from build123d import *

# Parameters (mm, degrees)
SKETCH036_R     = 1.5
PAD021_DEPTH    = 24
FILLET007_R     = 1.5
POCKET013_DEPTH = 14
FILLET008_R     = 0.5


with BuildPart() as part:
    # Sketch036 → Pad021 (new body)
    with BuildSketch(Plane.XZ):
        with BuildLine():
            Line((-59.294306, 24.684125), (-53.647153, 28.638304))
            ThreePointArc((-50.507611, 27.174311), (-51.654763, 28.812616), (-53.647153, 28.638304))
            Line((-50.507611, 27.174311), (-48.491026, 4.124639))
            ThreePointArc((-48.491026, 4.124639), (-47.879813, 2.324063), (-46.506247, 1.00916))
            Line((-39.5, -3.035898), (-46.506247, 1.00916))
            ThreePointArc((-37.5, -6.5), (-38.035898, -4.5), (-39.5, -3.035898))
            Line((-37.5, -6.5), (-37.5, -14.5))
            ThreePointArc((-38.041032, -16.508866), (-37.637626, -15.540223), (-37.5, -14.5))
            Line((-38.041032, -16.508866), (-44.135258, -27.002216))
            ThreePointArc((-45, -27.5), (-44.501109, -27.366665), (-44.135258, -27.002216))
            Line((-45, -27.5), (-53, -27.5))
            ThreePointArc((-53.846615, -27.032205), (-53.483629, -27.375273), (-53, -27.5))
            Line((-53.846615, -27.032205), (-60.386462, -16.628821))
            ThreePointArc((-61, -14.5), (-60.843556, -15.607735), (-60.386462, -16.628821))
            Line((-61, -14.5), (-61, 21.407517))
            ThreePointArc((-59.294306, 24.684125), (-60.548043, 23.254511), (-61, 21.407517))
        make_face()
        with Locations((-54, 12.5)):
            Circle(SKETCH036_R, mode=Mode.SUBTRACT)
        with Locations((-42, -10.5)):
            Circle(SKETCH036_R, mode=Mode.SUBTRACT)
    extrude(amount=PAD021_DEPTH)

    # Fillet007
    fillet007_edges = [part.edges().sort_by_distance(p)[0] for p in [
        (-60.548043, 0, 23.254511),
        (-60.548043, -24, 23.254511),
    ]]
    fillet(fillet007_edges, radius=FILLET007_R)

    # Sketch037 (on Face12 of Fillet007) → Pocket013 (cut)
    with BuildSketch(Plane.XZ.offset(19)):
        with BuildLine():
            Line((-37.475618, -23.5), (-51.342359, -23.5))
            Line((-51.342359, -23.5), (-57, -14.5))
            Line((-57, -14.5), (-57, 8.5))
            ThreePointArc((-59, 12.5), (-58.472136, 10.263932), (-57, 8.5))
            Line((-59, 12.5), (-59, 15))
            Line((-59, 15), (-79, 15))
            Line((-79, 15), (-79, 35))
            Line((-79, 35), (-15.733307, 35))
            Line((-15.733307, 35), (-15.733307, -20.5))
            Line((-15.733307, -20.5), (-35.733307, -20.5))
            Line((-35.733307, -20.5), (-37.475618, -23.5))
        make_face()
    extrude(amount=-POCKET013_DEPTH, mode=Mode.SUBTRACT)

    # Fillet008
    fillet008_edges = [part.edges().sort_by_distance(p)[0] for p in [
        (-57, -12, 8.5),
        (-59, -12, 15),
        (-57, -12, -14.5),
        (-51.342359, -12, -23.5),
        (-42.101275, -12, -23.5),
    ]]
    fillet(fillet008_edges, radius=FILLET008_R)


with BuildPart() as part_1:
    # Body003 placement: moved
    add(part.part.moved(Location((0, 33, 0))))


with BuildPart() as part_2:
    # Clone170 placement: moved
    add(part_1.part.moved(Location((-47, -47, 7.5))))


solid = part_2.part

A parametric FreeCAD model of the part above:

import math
import FreeCAD as App
import Part
import Sketcher

V = App.Vector
Q = App.Units.Quantity


def edges_at(feature, points):
    """Names of the edges that pass closest to the given points."""
    edges = feature.Shape.Edges
    near = lambda p: min(range(len(edges)), key=lambda i: edges[i].distToShape(Part.Vertex(*p))[0])
    return sorted({f"Edge{near(p) + 1}" for p in points})

doc = App.newDocument("Part")
body = doc.addObject("PartDesign::Body", "Body")

sketch1 = body.newObject("Sketcher::SketchObject", "Sketch")
sketch1.AttachmentSupport = (doc.getObject("XZ_Plane"), [""])
sketch1.MapMode = "FlatFace"
sketch1.addGeometry(Part.LineSegment(V(-53.647153, 28.638304, 0), V(-59.294306, 24.684125, 0)), False)
sketch1.addGeometry(Part.ArcOfCircle(Part.Circle(V(-56.999996, 21.407515, 0), V(0, 0, 1), 4.000004), math.radians(125.000034), math.radians(179.99997)), False)
sketch1.addGeometry(Part.LineSegment(V(-61, 21.407517, 0), V(-61, -14.5, 0)), False)
sketch1.addGeometry(Part.ArcOfCircle(Part.Circle(V(-56.999993, -14.499999, 0), V(0, 0, 1), 4.000007), math.radians(-179.999982), math.radians(-147.845469)), False)
sketch1.addGeometry(Part.LineSegment(V(-60.386462, -16.628821, 0), V(-53.846615, -27.032205, 0)), False)
sketch1.addGeometry(Part.ArcOfCircle(Part.Circle(V(-53, -26.500001, 0), V(0, 0, 1), 0.999999), math.radians(-147.845478), math.radians(-89.999992)), False)
sketch1.addGeometry(Part.LineSegment(V(-53, -27.5, 0), V(-45, -27.5, 0)), False)
sketch1.addGeometry(Part.ArcOfCircle(Part.Circle(V(-44.999999, -26.500002, 0), V(0, 0, 1), 0.999998), math.radians(-90.000059), math.radians(-30.146647)), False)
sketch1.addGeometry(Part.LineSegment(V(-44.135258, -27.002216, 0), V(-38.041032, -16.508866, 0)), False)
sketch1.addGeometry(Part.ArcOfCircle(Part.Circle(V(-41.500015, -14.499996, 0), V(0, 0, 1), 4.000015), math.radians(-30.146683), math.radians(-0.000051)), False)
sketch1.addGeometry(Part.LineSegment(V(-37.5, -14.5, 0), V(-37.5, -6.5, 0)), False)
sketch1.addGeometry(Part.ArcOfCircle(Part.Circle(V(-41.499999, -6.499999, 0), V(0, 0, 1), 3.999999), math.radians(-0.000013), math.radians(60.000008)), False)
sketch1.addGeometry(Part.LineSegment(V(-39.5, -3.035898, 0), V(-46.506247, 1.00916, 0)), False)
sketch1.addGeometry(Part.ArcOfCircle(Part.Circle(V(-44.506249, 4.473261, 0), V(0, 0, 1), 3.999999), math.radians(-175.000014), math.radians(-119.999986)), False)
sketch1.addGeometry(Part.LineSegment(V(-48.491026, 4.124639, 0), V(-50.507611, 27.174311, 0)), False)
sketch1.addGeometry(Part.ArcOfCircle(Part.Circle(V(-52.5, 27.000002, 0), V(0, 0, 1), 1.999999), math.radians(4.999944), math.radians(125.000041)), False)
sketch1.addGeometry(Part.Circle(V(-42, -10.5, 0), V(0, 0, 1), 1.5), False)
sketch1.addGeometry(Part.Circle(V(-54, 12.5, 0), V(0, 0, 1), 1.5), False)
sketch1.addConstraint(Sketcher.Constraint("Tangent", 0, 2, 1, 1))
sketch1.addConstraint(Sketcher.Constraint("Tangent", 1, 2, 2, 1))
sketch1.addConstraint(Sketcher.Constraint("Tangent", 2, 2, 3, 1))
sketch1.addConstraint(Sketcher.Constraint("Tangent", 3, 2, 4, 1))
sketch1.addConstraint(Sketcher.Constraint("Tangent", 4, 2, 5, 1))
sketch1.addConstraint(Sketcher.Constraint("Tangent", 5, 2, 6, 1))
sketch1.addConstraint(Sketcher.Constraint("Tangent", 6, 2, 7, 1))
sketch1.addConstraint(Sketcher.Constraint("Tangent", 7, 2, 8, 1))
sketch1.addConstraint(Sketcher.Constraint("Tangent", 8, 2, 9, 1))
sketch1.addConstraint(Sketcher.Constraint("Tangent", 9, 2, 10, 1))
sketch1.addConstraint(Sketcher.Constraint("Tangent", 10, 2, 11, 1))
sketch1.addConstraint(Sketcher.Constraint("Tangent", 11, 2, 12, 1))
sketch1.addConstraint(Sketcher.Constraint("Tangent", 12, 2, 13, 2))
sketch1.addConstraint(Sketcher.Constraint("Tangent", 13, 1, 14, 1))
sketch1.addConstraint(Sketcher.Constraint("Tangent", 14, 2, 15, 1))
sketch1.addConstraint(Sketcher.Constraint("Tangent", 15, 2, 0, 1))
sketch1.addConstraint(Sketcher.Constraint("Vertical", 2))
sketch1.addConstraint(Sketcher.Constraint("Horizontal", 6))
sketch1.addConstraint(Sketcher.Constraint("Vertical", 10))
sketch1.addConstraint(Sketcher.Constraint("Equal", 5, 7))
sketch1.addConstraint(Sketcher.Constraint("Equal", 11, 13))
sketch1.addConstraint(Sketcher.Constraint("Equal", 16, 17))
sketch1.addConstraint(Sketcher.Constraint("Horizontal", 2, 2, 9, 2))
sketch1.addConstraint(Sketcher.Constraint("Equal", 6, 10))
sketch1.addConstraint(Sketcher.Constraint("Diameter", 16, 3.0))
sketch1.addConstraint(Sketcher.Constraint("Radius", 5, 0.999999))
sketch1.addConstraint(Sketcher.Constraint("Radius", 11, 3.999999))
sketch1.addConstraint(Sketcher.Constraint("Radius", 15, 1.999999))
sketch1.addConstraint(Sketcher.Constraint("DistanceX", 6, 1, 6, 2, 8.0))
sketch1.addConstraint(Sketcher.Constraint("Angle", 0, Q("-145.000001 deg")))
sketch1.addConstraint(Sketcher.Constraint("Angle", 12, Q("150.000004 deg")))
sketch1.addConstraint(Sketcher.Constraint("Angle", 14, Q("95 deg")))
sketch1.addConstraint(Sketcher.Constraint("DistanceX", 5, 3, -1, 1, 53.0))
sketch1.addConstraint(Sketcher.Constraint("DistanceY", -1, 1, 15, 3, 27.000002))
sketch1.addConstraint(Sketcher.Constraint("DistanceX", 16, 3, -1, 1, 42.0))
sketch1.addConstraint(Sketcher.Constraint("DistanceX", 17, 3, -1, 1, 54.0))
sketch1.addConstraint(Sketcher.Constraint("DistanceX", 1, 2, -1, 1, 61.0))
sketch1.addConstraint(Sketcher.Constraint("DistanceX", 15, 3, 11, 3, 11.0))
sketch1.addConstraint(Sketcher.Constraint("DistanceY", 16, 3, 11, 3, 4.000001))
sketch1.addConstraint(Sketcher.Constraint("DistanceY", 11, 3, 17, 3, 18.999999))
sketch1.addConstraint(Sketcher.Constraint("DistanceY", 5, 3, 2, 2, 12.000001))
sketch1.addConstraint(Sketcher.Constraint("DistanceY", 3, 3, -1, 1, 14.499999))
sketch1.addConstraint(Sketcher.Constraint("DistanceX", 11, 3, -1, 1, 41.499999))
sketch1.addConstraint(Sketcher.Constraint("Radius", 1, 4.000004))
sketch1.addConstraint(Sketcher.Constraint("Radius", 3, 4.000007))
sketch1.addConstraint(Sketcher.Constraint("Radius", 9, 4.000015))
pad1 = body.newObject("PartDesign::Pad", "Pad")
pad1.Profile = sketch1
pad1.Length = 24
doc.recompute()

fillet = body.newObject("PartDesign::Fillet", "Fillet")
fillet.Base = (pad1, edges_at(pad1, [(-60.548, 0, 23.255), (-60.548, -24, 23.255)]))
fillet.Radius = 1.5

sketch2 = body.newObject("Sketcher::SketchObject", "Sketch001")
sketch2.AttachmentSupport = (doc.getObject("XZ_Plane"), [""])
sketch2.MapMode = "FlatFace"
sketch2.AttachmentOffset = App.Placement(V(0, 0, 19), App.Rotation())
sketch2.addGeometry(Part.LineSegment(V(-51.342359, -23.5, 0), V(-37.475618, -23.5, 0)), False)
sketch2.addGeometry(Part.LineSegment(V(-37.475618, -23.5, 0), V(-35.733307, -20.5, 0)), False)
sketch2.addGeometry(Part.LineSegment(V(-35.733307, -20.5, 0), V(-15.733307, -20.5, 0)), False)
sketch2.addGeometry(Part.LineSegment(V(-15.733307, -20.5, 0), V(-15.733307, 35, 0)), False)
sketch2.addGeometry(Part.LineSegment(V(-15.733307, 35, 0), V(-79, 35, 0)), False)
sketch2.addGeometry(Part.LineSegment(V(-79, 35, 0), V(-79, 15, 0)), False)
sketch2.addGeometry(Part.LineSegment(V(-79, 15, 0), V(-59, 15, 0)), False)
sketch2.addGeometry(Part.LineSegment(V(-59, 15, 0), V(-59, 12.5, 0)), False)
sketch2.addGeometry(Part.ArcOfCircle(Part.Circle(V(-54, 12.5, 0), V(0, 0, 1), 5), math.radians(179.999998), math.radians(233.130105)), False)
sketch2.addGeometry(Part.LineSegment(V(-57, 8.5, 0), V(-57, -14.5, 0)), False)
sketch2.addGeometry(Part.LineSegment(V(-57, -14.5, 0), V(-51.342359, -23.5, 0)), False)
sketch2.addConstraint(Sketcher.Constraint("Coincident", 0, 2, 1, 1))
sketch2.addConstraint(Sketcher.Constraint("Coincident", 1, 2, 2, 1))
sketch2.addConstraint(Sketcher.Constraint("Coincident", 2, 2, 3, 1))
sketch2.addConstraint(Sketcher.Constraint("Coincident", 3, 2, 4, 1))
sketch2.addConstraint(Sketcher.Constraint("Coincident", 4, 2, 5, 1))
sketch2.addConstraint(Sketcher.Constraint("Coincident", 5, 2, 6, 1))
sketch2.addConstraint(Sketcher.Constraint("Coincident", 6, 2, 7, 1))
sketch2.addConstraint(Sketcher.Constraint("Tangent", 7, 2, 8, 1))
sketch2.addConstraint(Sketcher.Constraint("Coincident", 8, 2, 9, 1))
sketch2.addConstraint(Sketcher.Constraint("Coincident", 9, 2, 10, 1))
sketch2.addConstraint(Sketcher.Constraint("Coincident", 10, 2, 0, 1))
sketch2.addConstraint(Sketcher.Constraint("Horizontal", 0))
sketch2.addConstraint(Sketcher.Constraint("Horizontal", 2))
sketch2.addConstraint(Sketcher.Constraint("Vertical", 3))
sketch2.addConstraint(Sketcher.Constraint("Horizontal", 4))
sketch2.addConstraint(Sketcher.Constraint("Vertical", 5))
sketch2.addConstraint(Sketcher.Constraint("Horizontal", 6))
sketch2.addConstraint(Sketcher.Constraint("Vertical", 7))
sketch2.addConstraint(Sketcher.Constraint("Vertical", 9))
sketch2.addConstraint(Sketcher.Constraint("Equal", 2, 6))
sketch2.addConstraint(Sketcher.Constraint("Equal", 6, 5))
sketch2.addConstraint(Sketcher.Constraint("Radius", 8, 5.0))
sketch2.addConstraint(Sketcher.Constraint("DistanceX", 2, 1, 2, 2, 20.0))
sketch2.addConstraint(Sketcher.Constraint("DistanceY", 9, 2, 9, 1, 23.0))
sketch2.addConstraint(Sketcher.Constraint("DistanceY", 3, 1, 3, 2, 55.5))
sketch2.addConstraint(Sketcher.Constraint("DistanceY", 7, 2, 7, 1, 2.5))
sketch2.addConstraint(Sketcher.Constraint("DistanceX", 8, 3, -1, 1, 54.0))
sketch2.addConstraint(Sketcher.Constraint("DistanceY", -1, 1, 3, 2, 35.0))
sketch2.addConstraint(Sketcher.Constraint("DistanceX", 8, 2, -1, 1, 57.0))
sketch2.addConstraint(Sketcher.Constraint("DistanceY", 0, 2, 8, 3, 36.0))
sketch2.addConstraint(Sketcher.Constraint("DistanceX", 0, 1, 0, 2, 13.866741))
sketch2.addConstraint(Sketcher.Constraint("DistanceX", 4, 2, 4, 1, 63.266693))
sketch2.addConstraint(Sketcher.Constraint("DistanceX", 10, 2, -1, 1, 51.342359))
pocket1 = body.newObject("PartDesign::Pocket", "Pocket")
pocket1.Profile = sketch2
pocket1.Length = 14
doc.recompute()

fillet2 = body.newObject("PartDesign::Fillet", "Fillet001")
fillet2.Base = (pocket1, edges_at(pocket1, [
    (-57, -12, 8.5),
    (-59, -12, 15),
    (-57, -12, -14.5),
    (-51.342, -12, -23.5),
    (-42.101, -12, -23.5),
]))
fillet2.Radius = 0.5
body2 = doc.addObject("PartDesign::Body", "Body001")
doc.recompute()

body.Placement = App.Placement(V(0, 33, 0), App.Rotation(V(0, 0, 1), 0))
boolean = body2.newObject("PartDesign::Boolean", "Boolean")
boolean.Type = "Fuse"
boolean.addObjects([body])
body3 = doc.addObject("PartDesign::Body", "Body002")
doc.recompute()

body2.Placement = App.Placement(V(-47, -47, 7.5), App.Rotation(V(0, 0, 1), 0))
boolean2 = body3.newObject("PartDesign::Boolean", "Boolean001")
boolean2.Type = "Fuse"
boolean2.addObjects([body2])

doc.recompute()
